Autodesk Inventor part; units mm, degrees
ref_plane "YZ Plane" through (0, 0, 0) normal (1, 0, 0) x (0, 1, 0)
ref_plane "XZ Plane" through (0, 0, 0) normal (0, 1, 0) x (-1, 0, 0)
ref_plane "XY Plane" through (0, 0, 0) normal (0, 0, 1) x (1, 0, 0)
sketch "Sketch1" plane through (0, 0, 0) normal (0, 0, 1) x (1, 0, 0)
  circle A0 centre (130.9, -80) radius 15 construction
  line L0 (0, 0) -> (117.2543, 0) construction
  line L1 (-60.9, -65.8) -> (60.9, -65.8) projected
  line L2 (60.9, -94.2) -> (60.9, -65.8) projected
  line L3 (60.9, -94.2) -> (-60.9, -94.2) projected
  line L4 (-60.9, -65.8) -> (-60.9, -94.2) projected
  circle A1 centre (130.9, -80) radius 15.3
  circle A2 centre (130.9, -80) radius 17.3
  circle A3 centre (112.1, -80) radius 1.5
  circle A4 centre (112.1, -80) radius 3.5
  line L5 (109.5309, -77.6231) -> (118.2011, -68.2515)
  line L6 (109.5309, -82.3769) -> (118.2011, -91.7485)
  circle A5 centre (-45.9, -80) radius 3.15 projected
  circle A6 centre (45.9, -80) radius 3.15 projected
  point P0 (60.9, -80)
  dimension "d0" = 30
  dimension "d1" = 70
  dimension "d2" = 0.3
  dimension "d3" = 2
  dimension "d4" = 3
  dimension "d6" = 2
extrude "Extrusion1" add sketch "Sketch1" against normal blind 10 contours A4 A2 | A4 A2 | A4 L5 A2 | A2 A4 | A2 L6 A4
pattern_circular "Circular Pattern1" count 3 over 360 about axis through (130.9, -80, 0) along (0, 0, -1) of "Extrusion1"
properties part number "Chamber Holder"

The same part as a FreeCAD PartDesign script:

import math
import FreeCAD as App
import Part
import Sketcher
from FreeCAD import Vector

doc = App.newDocument("Part")
body = doc.addObject("PartDesign::Body", "Body")

# Sketch on XY plane
sketch1 = doc.addObject("Sketcher::SketchObject", "Sketch")
body.addObject(sketch1)
sketch1.AttachmentSupport = (doc.XY_Plane, [""])
sketch1.MapMode = "FlatFace"
sketch1.addGeometry([
    Part.LineSegment(Vector(118.2, -68.3, 0), Vector(109.5, -77.6, 0)),  # 0
    Part.ArcOfCircle(Part.Circle(Vector(112.1, -80, 0), Vector(0, 0, 1), 3.5), math.radians(137), math.radians(223)),  # 1
    Part.LineSegment(Vector(109.5, -82.4, 0), Vector(118.2, -91.7, 0)),  # 2
    Part.ArcOfCircle(Part.Circle(Vector(130.9, -80, 0), Vector(0, 0, 1), 17.3), math.radians(-137), math.radians(137)),  # 3
    Part.Circle(Vector(130.9, -80, 0), Vector(0, 0, 1), 15.3),  # 4
    Part.Circle(Vector(112.1, -80, 0), Vector(0, 0, 1), 1.5),  # 5
], False)
sketch1.addConstraint([
    Sketcher.Constraint("Tangent", 0, 2, 1, 1),
    Sketcher.Constraint("Tangent", 1, 2, 2, 1),
    Sketcher.Constraint("Tangent", 2, 2, 3, 1),
    Sketcher.Constraint("Tangent", 3, 2, 0, 1),
    Sketcher.Constraint("Coincident", 4, 3, 3, 3),
    Sketcher.Constraint("Coincident", 5, 3, 1, 3),
    Sketcher.Constraint("Horizontal", 1, 3, 3, 3),
    Sketcher.Constraint("Diameter", 5, 3.0),
    Sketcher.Constraint("Diameter", 4, 30.6),
    Sketcher.Constraint("Radius", 1, 3.5),
    Sketcher.Constraint("Radius", 3, 17.3),
    Sketcher.Constraint("DistanceY", 1, 3, -1, 1, 80.0),
    Sketcher.Constraint("DistanceX", -1, 1, 1, 3, 112.1),
    Sketcher.Constraint("DistanceX", -1, 1, 3, 3, 130.9),
])
pad1 = doc.addObject("PartDesign::Pad", "Pad")
body.addObject(pad1)
pad1.Profile = sketch1
pad1.Length = 10
pad1.Reversed = True
doc.recompute()

datumline = doc.addObject("PartDesign::Line", "DatumLine")
body.addObject(datumline)
datumline.Placement = App.Placement(Vector(130.9, -80, 0), App.Rotation(Vector(0, 0, 1), Vector(0, 0, 1)))
polarpattern = doc.addObject("PartDesign::PolarPattern", "PolarPattern")
body.addObject(polarpattern)
polarpattern.Originals = [pad1]
polarpattern.Axis = (datumline, [""])
polarpattern.Angle = 360
polarpattern.Occurrences = 3
body.Tip = polarpattern

doc.recompute()
